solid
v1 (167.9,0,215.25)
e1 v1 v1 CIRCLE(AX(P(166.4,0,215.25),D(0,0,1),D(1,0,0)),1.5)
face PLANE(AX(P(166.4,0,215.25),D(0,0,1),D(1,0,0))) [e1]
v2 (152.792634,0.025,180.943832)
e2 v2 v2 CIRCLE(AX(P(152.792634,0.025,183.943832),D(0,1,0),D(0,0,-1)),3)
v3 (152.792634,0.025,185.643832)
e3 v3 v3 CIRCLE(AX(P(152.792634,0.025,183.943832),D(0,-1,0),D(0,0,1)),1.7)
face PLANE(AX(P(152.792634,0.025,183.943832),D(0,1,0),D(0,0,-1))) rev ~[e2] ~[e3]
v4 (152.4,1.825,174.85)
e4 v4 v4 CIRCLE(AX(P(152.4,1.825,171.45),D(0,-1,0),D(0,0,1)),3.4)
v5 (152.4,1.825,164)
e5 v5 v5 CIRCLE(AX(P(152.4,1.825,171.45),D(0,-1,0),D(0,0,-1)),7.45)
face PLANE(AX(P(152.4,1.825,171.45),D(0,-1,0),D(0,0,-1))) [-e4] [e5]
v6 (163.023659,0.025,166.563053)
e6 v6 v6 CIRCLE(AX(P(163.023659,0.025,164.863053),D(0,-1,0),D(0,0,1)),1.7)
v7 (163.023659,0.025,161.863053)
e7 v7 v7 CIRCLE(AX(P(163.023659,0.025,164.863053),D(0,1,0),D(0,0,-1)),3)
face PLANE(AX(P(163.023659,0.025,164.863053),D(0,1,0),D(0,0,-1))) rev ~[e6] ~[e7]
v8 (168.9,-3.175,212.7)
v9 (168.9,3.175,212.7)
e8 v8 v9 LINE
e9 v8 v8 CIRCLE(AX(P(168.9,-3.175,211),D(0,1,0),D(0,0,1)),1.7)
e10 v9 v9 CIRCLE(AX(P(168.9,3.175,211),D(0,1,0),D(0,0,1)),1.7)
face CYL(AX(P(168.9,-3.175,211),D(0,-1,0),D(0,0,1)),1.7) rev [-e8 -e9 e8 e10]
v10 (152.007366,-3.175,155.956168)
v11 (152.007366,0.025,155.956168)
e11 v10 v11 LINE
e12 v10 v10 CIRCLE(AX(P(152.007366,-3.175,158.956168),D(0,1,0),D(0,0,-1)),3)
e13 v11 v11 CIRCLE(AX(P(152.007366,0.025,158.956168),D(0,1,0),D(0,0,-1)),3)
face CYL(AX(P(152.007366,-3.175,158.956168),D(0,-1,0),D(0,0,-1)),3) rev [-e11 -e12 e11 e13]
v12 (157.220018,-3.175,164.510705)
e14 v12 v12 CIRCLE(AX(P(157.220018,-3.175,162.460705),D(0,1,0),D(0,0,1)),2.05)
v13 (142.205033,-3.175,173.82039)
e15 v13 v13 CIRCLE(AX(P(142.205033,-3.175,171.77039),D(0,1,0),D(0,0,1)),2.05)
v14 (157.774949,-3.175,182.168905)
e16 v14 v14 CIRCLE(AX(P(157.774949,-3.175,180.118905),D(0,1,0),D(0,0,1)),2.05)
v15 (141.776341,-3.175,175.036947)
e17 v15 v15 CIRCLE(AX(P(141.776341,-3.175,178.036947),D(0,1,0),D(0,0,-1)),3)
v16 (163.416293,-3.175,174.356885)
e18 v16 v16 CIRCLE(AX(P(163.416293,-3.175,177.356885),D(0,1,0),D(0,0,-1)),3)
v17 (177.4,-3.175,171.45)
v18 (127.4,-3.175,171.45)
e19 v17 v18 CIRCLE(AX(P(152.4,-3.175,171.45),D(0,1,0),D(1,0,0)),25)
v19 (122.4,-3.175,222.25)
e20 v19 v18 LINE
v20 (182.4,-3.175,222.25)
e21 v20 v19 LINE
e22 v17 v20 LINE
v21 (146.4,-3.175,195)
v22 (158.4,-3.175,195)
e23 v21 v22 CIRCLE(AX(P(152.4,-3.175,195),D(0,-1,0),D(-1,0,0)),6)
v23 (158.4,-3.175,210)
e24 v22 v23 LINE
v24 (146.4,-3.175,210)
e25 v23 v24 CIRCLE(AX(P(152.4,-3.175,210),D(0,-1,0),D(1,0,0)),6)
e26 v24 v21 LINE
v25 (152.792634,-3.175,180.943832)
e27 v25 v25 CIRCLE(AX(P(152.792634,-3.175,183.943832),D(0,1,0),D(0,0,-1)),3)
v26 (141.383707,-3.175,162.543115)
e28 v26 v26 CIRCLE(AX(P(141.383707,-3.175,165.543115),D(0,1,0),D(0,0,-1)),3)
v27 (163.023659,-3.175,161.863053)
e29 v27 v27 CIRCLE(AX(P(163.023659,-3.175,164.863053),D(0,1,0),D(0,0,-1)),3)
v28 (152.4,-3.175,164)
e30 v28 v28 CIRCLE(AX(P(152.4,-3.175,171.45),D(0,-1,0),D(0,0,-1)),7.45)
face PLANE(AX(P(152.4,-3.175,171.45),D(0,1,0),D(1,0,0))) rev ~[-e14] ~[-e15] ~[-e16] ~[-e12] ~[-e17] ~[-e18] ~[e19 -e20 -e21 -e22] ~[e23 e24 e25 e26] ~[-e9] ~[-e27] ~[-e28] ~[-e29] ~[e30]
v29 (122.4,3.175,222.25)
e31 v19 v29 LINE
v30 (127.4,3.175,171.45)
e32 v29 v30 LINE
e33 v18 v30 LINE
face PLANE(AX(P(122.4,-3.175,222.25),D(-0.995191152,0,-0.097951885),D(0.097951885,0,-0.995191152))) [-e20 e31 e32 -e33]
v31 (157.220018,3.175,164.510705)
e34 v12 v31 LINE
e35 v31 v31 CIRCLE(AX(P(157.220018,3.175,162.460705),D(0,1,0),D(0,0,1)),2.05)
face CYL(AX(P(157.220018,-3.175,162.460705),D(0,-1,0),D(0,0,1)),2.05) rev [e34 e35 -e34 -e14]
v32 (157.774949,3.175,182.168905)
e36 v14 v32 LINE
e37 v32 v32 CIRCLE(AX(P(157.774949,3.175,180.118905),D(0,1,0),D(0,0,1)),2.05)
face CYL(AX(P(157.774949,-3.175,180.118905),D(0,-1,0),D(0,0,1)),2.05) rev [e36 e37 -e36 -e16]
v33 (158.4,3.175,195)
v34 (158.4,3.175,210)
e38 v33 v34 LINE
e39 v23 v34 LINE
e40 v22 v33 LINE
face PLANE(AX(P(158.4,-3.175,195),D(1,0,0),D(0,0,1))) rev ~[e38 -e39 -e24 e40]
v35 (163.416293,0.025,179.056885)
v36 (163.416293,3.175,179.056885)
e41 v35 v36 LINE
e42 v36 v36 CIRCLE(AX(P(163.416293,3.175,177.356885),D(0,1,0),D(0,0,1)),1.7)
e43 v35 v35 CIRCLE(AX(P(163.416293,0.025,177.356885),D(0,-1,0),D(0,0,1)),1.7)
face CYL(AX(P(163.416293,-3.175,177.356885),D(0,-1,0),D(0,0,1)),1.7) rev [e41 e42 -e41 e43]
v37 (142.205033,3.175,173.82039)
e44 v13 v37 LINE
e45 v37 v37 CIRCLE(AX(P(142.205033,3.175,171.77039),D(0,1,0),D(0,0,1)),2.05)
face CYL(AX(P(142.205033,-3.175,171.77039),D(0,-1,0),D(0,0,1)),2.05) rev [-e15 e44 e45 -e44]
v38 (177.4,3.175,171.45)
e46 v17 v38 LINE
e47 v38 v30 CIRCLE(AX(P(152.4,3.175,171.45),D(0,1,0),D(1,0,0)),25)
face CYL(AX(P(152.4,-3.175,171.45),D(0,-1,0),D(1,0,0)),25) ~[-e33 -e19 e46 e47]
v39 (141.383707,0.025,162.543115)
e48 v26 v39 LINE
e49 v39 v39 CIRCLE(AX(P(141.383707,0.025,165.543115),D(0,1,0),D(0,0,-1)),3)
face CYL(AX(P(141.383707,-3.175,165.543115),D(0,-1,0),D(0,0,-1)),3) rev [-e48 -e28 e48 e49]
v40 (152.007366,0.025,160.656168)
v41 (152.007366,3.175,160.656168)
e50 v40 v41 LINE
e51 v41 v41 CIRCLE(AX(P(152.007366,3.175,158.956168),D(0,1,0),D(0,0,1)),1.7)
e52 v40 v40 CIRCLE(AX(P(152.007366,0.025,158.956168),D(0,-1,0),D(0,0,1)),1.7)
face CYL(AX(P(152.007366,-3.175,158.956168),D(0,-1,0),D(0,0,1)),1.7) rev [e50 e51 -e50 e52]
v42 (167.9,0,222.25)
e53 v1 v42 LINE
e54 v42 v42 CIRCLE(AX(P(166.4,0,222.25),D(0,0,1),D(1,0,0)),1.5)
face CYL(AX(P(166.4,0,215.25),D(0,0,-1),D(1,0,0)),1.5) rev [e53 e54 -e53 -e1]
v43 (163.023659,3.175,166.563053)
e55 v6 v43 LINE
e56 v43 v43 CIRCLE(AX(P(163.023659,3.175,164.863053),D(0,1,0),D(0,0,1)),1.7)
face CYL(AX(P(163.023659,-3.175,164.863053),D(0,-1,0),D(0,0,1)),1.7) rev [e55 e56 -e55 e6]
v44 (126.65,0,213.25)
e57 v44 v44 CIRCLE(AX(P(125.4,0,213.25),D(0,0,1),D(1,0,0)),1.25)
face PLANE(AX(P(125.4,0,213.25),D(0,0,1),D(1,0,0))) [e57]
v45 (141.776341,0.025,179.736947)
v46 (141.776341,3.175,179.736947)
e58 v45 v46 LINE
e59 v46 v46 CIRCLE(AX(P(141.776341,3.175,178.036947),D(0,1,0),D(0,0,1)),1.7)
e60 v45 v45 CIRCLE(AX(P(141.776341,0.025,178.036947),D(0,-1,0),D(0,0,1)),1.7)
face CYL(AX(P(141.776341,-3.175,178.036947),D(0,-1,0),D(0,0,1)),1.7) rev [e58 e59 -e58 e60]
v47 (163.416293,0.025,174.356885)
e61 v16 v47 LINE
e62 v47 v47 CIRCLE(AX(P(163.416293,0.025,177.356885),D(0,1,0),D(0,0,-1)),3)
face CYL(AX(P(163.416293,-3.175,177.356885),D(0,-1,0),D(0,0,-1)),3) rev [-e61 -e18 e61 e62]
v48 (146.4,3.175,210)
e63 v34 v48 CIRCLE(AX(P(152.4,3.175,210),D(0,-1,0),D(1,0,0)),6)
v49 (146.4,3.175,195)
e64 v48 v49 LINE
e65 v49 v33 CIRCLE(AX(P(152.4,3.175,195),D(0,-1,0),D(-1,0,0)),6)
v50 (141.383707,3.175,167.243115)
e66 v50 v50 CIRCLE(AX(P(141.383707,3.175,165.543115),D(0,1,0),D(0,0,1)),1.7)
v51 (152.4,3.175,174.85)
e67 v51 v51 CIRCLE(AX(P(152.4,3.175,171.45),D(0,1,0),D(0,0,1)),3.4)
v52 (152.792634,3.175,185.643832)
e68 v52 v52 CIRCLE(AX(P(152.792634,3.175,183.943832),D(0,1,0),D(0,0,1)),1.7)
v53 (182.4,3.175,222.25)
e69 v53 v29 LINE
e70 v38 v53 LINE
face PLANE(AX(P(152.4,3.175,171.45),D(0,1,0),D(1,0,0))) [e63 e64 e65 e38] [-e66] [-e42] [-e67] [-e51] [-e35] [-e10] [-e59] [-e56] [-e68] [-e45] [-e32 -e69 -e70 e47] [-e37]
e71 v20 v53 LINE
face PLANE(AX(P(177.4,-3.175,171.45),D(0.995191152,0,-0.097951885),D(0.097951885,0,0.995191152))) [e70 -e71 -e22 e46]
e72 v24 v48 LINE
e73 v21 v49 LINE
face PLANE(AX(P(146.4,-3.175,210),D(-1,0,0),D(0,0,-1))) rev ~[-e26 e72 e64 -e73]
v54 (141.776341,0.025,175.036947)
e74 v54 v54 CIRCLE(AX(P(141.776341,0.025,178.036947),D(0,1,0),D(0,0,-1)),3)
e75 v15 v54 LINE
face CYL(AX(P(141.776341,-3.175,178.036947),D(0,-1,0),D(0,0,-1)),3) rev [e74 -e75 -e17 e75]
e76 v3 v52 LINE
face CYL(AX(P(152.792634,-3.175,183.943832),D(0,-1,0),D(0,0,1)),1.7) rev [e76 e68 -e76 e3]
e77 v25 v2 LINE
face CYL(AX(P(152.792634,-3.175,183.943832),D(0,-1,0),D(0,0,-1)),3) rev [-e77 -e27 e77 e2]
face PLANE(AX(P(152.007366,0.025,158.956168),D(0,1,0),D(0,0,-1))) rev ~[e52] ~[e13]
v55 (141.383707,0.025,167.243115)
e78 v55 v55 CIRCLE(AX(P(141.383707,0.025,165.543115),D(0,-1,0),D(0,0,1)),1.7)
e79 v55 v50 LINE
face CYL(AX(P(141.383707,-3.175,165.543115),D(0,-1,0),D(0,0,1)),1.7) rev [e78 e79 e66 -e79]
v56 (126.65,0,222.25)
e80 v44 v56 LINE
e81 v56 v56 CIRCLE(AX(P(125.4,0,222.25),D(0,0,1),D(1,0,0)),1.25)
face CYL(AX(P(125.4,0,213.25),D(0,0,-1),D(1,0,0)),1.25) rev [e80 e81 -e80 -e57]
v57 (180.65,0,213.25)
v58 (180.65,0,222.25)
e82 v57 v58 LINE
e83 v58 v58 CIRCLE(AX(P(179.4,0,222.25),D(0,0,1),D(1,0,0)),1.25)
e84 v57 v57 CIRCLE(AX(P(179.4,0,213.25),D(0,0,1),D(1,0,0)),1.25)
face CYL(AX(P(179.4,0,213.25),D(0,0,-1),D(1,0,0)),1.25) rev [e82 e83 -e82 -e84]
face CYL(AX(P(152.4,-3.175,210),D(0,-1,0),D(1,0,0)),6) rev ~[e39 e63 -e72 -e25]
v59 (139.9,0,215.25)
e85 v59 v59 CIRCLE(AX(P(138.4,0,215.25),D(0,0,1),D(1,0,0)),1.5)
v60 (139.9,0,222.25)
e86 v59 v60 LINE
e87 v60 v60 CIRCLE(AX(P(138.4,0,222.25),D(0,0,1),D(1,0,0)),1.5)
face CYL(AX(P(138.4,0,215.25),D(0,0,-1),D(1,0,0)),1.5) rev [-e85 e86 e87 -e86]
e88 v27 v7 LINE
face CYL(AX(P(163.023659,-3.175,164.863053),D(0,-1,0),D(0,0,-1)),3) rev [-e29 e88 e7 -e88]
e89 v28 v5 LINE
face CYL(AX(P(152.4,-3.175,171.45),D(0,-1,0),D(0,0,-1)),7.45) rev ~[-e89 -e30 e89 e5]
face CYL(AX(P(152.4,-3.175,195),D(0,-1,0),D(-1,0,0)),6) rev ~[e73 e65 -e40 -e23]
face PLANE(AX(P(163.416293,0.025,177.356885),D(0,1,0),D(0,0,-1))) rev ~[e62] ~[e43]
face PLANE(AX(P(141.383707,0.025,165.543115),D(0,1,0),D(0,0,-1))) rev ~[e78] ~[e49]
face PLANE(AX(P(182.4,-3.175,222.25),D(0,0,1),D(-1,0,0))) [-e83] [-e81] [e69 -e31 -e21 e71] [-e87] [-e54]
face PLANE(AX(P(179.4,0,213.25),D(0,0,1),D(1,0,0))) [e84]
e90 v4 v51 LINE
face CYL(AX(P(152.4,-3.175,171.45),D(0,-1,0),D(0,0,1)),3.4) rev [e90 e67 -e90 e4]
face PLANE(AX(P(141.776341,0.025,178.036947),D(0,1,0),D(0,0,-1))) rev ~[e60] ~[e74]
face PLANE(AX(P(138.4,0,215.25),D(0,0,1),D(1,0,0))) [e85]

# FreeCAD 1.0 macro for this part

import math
import FreeCAD as App
import Part
import Sketcher

V = App.Vector

doc = App.newDocument("Part")
params = doc.addObject("Spreadsheet::Sheet", "Params")
for row, (alias, value) in enumerate([
    ("sketch1_width", "50 mm"),
    ("sketch1_width2", "60 mm"),
    ("pad1_length", "6.35 mm"),
    ("sketch2_diameter", "50 mm"),
    ("pad2_length", "6.35 mm"),
    ("sketch3_diameter", "3.4 mm"),
    ("sketch3_diameter2", "4.1 mm"),
    ("sketch3_diameter3", "6.8 mm"),
    ("pocket1_length", "6.35 mm"),
    ("sketch4_diameter", "6 mm"),
    ("pocket2_length", "3.2 mm"),
    ("sketch5_radius", "6 mm"),
    ("sketch5_height", "15 mm"),
    ("pocket3_length", "6.35 mm"),
    ("sketch6_diameter", "2.5 mm"),
    ("pocket4_length", "9 mm"),
    ("sketch7_diameter", "3 mm"),
    ("pocket5_length", "7 mm"),
    ("sketch8_diameter", "3.4 mm"),
    ("pocket6_length", "6.35 mm"),
    ("sketch9_diameter", "14.9 mm"),
    ("pocket7_length", "5 mm"),
], start=1):
    params.set(f"A{row}", alias)
    params.set(f"B{row}", "=" + value)
    params.setAlias(f"B{row}", alias)

body = doc.addObject("PartDesign::Body", "Body")

# Sketch on XZ plane
sketch1 = doc.addObject("Sketcher::SketchObject", "Sketch")
body.addObject(sketch1)
sketch1.AttachmentSupport = (doc.XZ_Plane, [""])
sketch1.MapMode = "FlatFace"
sketch1.AttachmentOffset = App.Placement(V(0, 0, 3.175), App.Rotation())
sketch1.addGeometry([
    Part.LineSegment(V(177, 171, 0), V(127, 171, 0)),
    Part.LineSegment(V(127, 171, 0), V(122, 222, 0)),
    Part.LineSegment(V(122, 222, 0), V(182, 222, 0)),
    Part.LineSegment(V(182, 222, 0), V(177, 171, 0)),
], False)
sketch1.addConstraint([
    Sketcher.Constraint("Coincident", 0, 2, 1, 1),
    Sketcher.Constraint("Coincident", 1, 2, 2, 1),
    Sketcher.Constraint("Coincident", 2, 2, 3, 1),
    Sketcher.Constraint("Coincident", 3, 2, 0, 1),
    Sketcher.Constraint("Horizontal", 0),
    Sketcher.Constraint("Horizontal", 2),
    Sketcher.Constraint("Equal", 1, 3),
    Sketcher.Constraint("DistanceX", 0, 2, 0, 1, 50.0),
    Sketcher.Constraint("DistanceX", 2, 1, 2, 2, 60.0),
    Sketcher.Constraint("DistanceX", -1, 1, 0, 2, 127.4),
    Sketcher.Constraint("DistanceY", 0, 2, 1, 2, 50.8),
    Sketcher.Constraint("DistanceY", -1, 1, 0, 2, 171.45),
])
sketch1.setExpression("Constraints[7]", "Params.sketch1_width")
sketch1.setExpression("Constraints[8]", "Params.sketch1_width2")
pad1 = doc.addObject("PartDesign::Pad", "Pad")
body.addObject(pad1)
pad1.Profile = sketch1
pad1.setExpression("Length", "Params.pad1_length")
pad1.Reversed = True

# Sketch on XZ plane
sketch2 = doc.addObject("Sketcher::SketchObject", "Sketch001")
body.addObject(sketch2)
sketch2.AttachmentSupport = (doc.XZ_Plane, [""])
sketch2.MapMode = "FlatFace"
sketch2.AttachmentOffset = App.Placement(V(0, 0, 3.175), App.Rotation())
sketch2.addGeometry(Part.Circle(V(152, 171, 0), V(0, 0, 1), 25), False)
sketch2.addConstraint([
    Sketcher.Constraint("Diameter", 0, 50.0),
    Sketcher.Constraint("DistanceX", -1, 1, 0, 3, 152.4),
    Sketcher.Constraint("DistanceY", -1, 1, 0, 3, 171.45),
])
sketch2.setExpression("Constraints[0]", "Params.sketch2_diameter")
pad2 = doc.addObject("PartDesign::Pad", "Pad001")
body.addObject(pad2)
pad2.Profile = sketch2
pad2.setExpression("Length", "Params.pad2_length")
pad2.Reversed = True

# Sketch on XZ plane
sketch3 = doc.addObject("Sketcher::SketchObject", "Sketch002")
body.addObject(sketch3)
sketch3.AttachmentSupport = (doc.XZ_Plane, [""])
sketch3.MapMode = "FlatFace"
sketch3.AttachmentOffset = App.Placement(V(0, 0, 3.175), App.Rotation())
sketch3.addGeometry([
    Part.Circle(V(163.4, 177.4, 0), V(0, 0, 1), 1.7),  # 0
    Part.Circle(V(152.8, 183.9, 0), V(0, 0, 1), 1.7),  # 1
    Part.Circle(V(141.8, 178, 0), V(0, 0, 1), 1.7),  # 2
    Part.Circle(V(141.4, 165.5, 0), V(0, 0, 1), 1.7),  # 3
    Part.Circle(V(152, 159, 0), V(0, 0, 1), 1.7),  # 4
    Part.Circle(V(163, 164.9, 0), V(0, 0, 1), 1.7),  # 5
    Part.Circle(V(157.8, 180.1, 0), V(0, 0, 1), 2),  # 6
    Part.Circle(V(142.2, 171.8, 0), V(0, 0, 1), 2),  # 7
    Part.Circle(V(157.2, 162.5, 0), V(0, 0, 1), 2),  # 8
    Part.Circle(V(152.4, 171.4, 0), V(0, 0, 1), 3.4),  # 9
], False)
sketch3.addConstraint([
    Sketcher.Constraint("Equal", 0, 1),
    Sketcher.Constraint("Equal", 1, 2),
    Sketcher.Constraint("Equal", 2, 3),
    Sketcher.Constraint("Equal", 3, 4),
    Sketcher.Constraint("Equal", 4, 5),
    Sketcher.Constraint("Equal", 6, 7),
    Sketcher.Constraint("Equal", 7, 8),
    Sketcher.Constraint("Diameter", 0, 3.4),
    Sketcher.Constraint("Diameter", 6, 4.1),
    Sketcher.Constraint("Diameter", 9, 6.8),
    Sketcher.Constraint("DistanceX", -1, 1, 9, 3, 152.4),
    Sketcher.Constraint("DistanceY", -1, 1, 9, 3, 171.45),
    Sketcher.Constraint("DistanceX", 7, 3, 1, 3, 10.587601),
    Sketcher.Constraint("DistanceY", 8, 3, 6, 3, 17.658201),
    Sketcher.Constraint("DistanceX", -1, 1, 2, 3, 141.776341),
    Sketcher.Constraint("DistanceX", -1, 1, 5, 3, 163.023659),
    Sketcher.Constraint("DistanceX", -1, 1, 6, 3, 157.774949),
    Sketcher.Constraint("DistanceY", -1, 1, 7, 3, 171.77039),
    Sketcher.Constraint("DistanceX", 1, 3, 0, 3, 10.623659),
    Sketcher.Constraint("DistanceX", 2, 3, 0, 3, 21.639952),
    Sketcher.Constraint("DistanceY", 3, 3, 0, 3, 11.813769),
    Sketcher.Constraint("DistanceX", 3, 3, 4, 3, 10.623659),
    Sketcher.Constraint("DistanceY", 4, 3, 2, 3, 19.080779),
    Sketcher.Constraint("DistanceX", 4, 3, 1, 3, 0.785269),
    Sketcher.Constraint("DistanceY", 5, 3, 1, 3, 19.080779),
    Sketcher.Constraint("DistanceY", 0, 3, 6, 3, 2.762021),
    Sketcher.Constraint("DistanceY", 2, 3, 6, 3, 2.081958),
    Sketcher.Constraint("DistanceY", 4, 3, 7, 3, 12.814222),
    Sketcher.Constraint("DistanceX", 8, 3, 5, 3, 5.803641),
    Sketcher.Constraint("DistanceY", -1, 1, 1, 3, 183.943832),
])
sketch3.setExpression("Constraints[7]", "Params.sketch3_diameter")
sketch3.setExpression("Constraints[8]", "Params.sketch3_diameter2")
sketch3.setExpression("Constraints[9]", "Params.sketch3_diameter3")
pocket1 = doc.addObject("PartDesign::Pocket", "Pocket")
body.addObject(pocket1)
pocket1.Profile = sketch3
pocket1.setExpression("Length", "Params.pocket1_length")

# Sketch on XZ plane
sketch4 = doc.addObject("Sketcher::SketchObject", "Sketch003")
body.addObject(sketch4)
sketch4.AttachmentSupport = (doc.XZ_Plane, [""])
sketch4.MapMode = "FlatFace"
sketch4.AttachmentOffset = App.Placement(V(0, 0, 3.175), App.Rotation())
sketch4.addGeometry([
    Part.Circle(V(163.4, 177.4, 0), V(0, 0, 1), 3),  # 0
    Part.Circle(V(152.8, 183.9, 0), V(0, 0, 1), 3),  # 1
    Part.Circle(V(141.8, 178, 0), V(0, 0, 1), 3),  # 2
    Part.Circle(V(141.4, 165.5, 0), V(0, 0, 1), 3),  # 3
    Part.Circle(V(152, 159, 0), V(0, 0, 1), 3),  # 4
    Part.Circle(V(163, 164.9, 0), V(0, 0, 1), 3),  # 5
], False)
sketch4.addConstraint([
    Sketcher.Constraint("Equal", 0, 1),
    Sketcher.Constraint("Equal", 1, 2),
    Sketcher.Constraint("Equal", 2, 3),
    Sketcher.Constraint("Equal", 3, 4),
    Sketcher.Constraint("Equal", 4, 5),
    Sketcher.Constraint("Diameter", 0, 6.0),
    Sketcher.Constraint("DistanceX", -1, 1, 2, 3, 141.776341),
    Sketcher.Constraint("DistanceX", -1, 1, 5, 3, 163.023659),
    Sketcher.Constraint("DistanceX", 1, 3, 0, 3, 10.623659),
    Sketcher.Constraint("DistanceX", 2, 3, 0, 3, 21.639952),
    Sketcher.Constraint("DistanceY", 3, 3, 0, 3, 11.813769),
    Sketcher.Constraint("DistanceX", 3, 3, 4, 3, 10.623659),
    Sketcher.Constraint("DistanceY", 4, 3, 2, 3, 19.080779),
    Sketcher.Constraint("DistanceX", 4, 3, 1, 3, 0.785269),
    Sketcher.Constraint("DistanceY", 5, 3, 1, 3, 19.080779),
    Sketcher.Constraint("DistanceY", -1, 1, 0, 3, 177.356885),
    Sketcher.Constraint("DistanceY", -1, 1, 1, 3, 183.943832),
    Sketcher.Constraint("DistanceY", -1, 1, 2, 3, 178.036947),
])
sketch4.setExpression("Constraints[5]", "Params.sketch4_diameter")
pocket2 = doc.addObject("PartDesign::Pocket", "Pocket001")
body.addObject(pocket2)
pocket2.Profile = sketch4
pocket2.setExpression("Length", "Params.pocket2_length")

# Sketch on XZ plane
sketch5 = doc.addObject("Sketcher::SketchObject", "Sketch004")
body.addObject(sketch5)
sketch5.AttachmentSupport = (doc.XZ_Plane, [""])
sketch5.MapMode = "FlatFace"
sketch5.AttachmentOffset = App.Placement(V(0, 0, 3.175), App.Rotation())
sketch5.addGeometry([
    Part.LineSegment(V(158, 210, 0), V(158, 195, 0)),
    Part.ArcOfCircle(Part.Circle(V(152, 195, 0), V(0, 0, 1), 6), math.radians(180), math.radians(360)),
    Part.LineSegment(V(146, 195, 0), V(146, 210, 0)),
    Part.ArcOfCircle(Part.Circle(V(152, 210, 0), V(0, 0, 1), 6), math.radians(0), math.radians(180)),
], False)
sketch5.addConstraint([
    Sketcher.Constraint("Tangent", 0, 2, 1, 2),
    Sketcher.Constraint("Tangent", 1, 1, 2, 1),
    Sketcher.Constraint("Tangent", 2, 2, 3, 2),
    Sketcher.Constraint("Tangent", 3, 1, 0, 1),
    Sketcher.Constraint("Vertical", 0),
    Sketcher.Constraint("Vertical", 2),
    Sketcher.Constraint("Radius", 1, 6.0),
    Sketcher.Constraint("DistanceY", 0, 2, 0, 1, 15.0),
    Sketcher.Constraint("DistanceY", -1, 1, 1, 3, 195.0),
    Sketcher.Constraint("DistanceX", -1, 1, 1, 3, 152.4),
])
sketch5.setExpression("Constraints[6]", "Params.sketch5_radius")
sketch5.setExpression("Constraints[7]", "Params.sketch5_height")
pocket3 = doc.addObject("PartDesign::Pocket", "Pocket002")
body.addObject(pocket3)
pocket3.Profile = sketch5
pocket3.setExpression("Length", "Params.pocket3_length")

# Sketch on XY plane
sketch6 = doc.addObject("Sketcher::SketchObject", "Sketch005")
body.addObject(sketch6)
sketch6.AttachmentSupport = (doc.XY_Plane, [""])
sketch6.MapMode = "FlatFace"
sketch6.AttachmentOffset = App.Placement(V(0, 0, 213.25), App.Rotation())
sketch6.addGeometry([
    Part.Circle(V(125.4, 0, 0), V(0, 0, 1), 1.2),
    Part.Circle(V(179.4, 0, 0), V(0, 0, 1), 1.2),
], False)
sketch6.addConstraint([
    Sketcher.Constraint("Equal", 0, 1),
    Sketcher.Constraint("PointOnObject", 0, 3, -1),
    Sketcher.Constraint("PointOnObject", 1, 3, -1),
    Sketcher.Constraint("Diameter", 0, 2.5),
    Sketcher.Constraint("DistanceX", 0, 3, 1, 3, 54.0),
    Sketcher.Constraint("DistanceX", -1, 1, 0, 3, 125.4),
])
sketch6.setExpression("Constraints[3]", "Params.sketch6_diameter")
pocket4 = doc.addObject("PartDesign::Pocket", "Pocket003")
body.addObject(pocket4)
pocket4.Profile = sketch6
pocket4.setExpression("Length", "Params.pocket4_length")
pocket4.Reversed = True

# Sketch on XY plane
sketch7 = doc.addObject("Sketcher::SketchObject", "Sketch006")
body.addObject(sketch7)
sketch7.AttachmentSupport = (doc.XY_Plane, [""])
sketch7.MapMode = "FlatFace"
sketch7.AttachmentOffset = App.Placement(V(0, 0, 215.25), App.Rotation())
sketch7.addGeometry([
    Part.Circle(V(138.4, 0, 0), V(0, 0, 1), 1.5),
    Part.Circle(V(166.4, 0, 0), V(0, 0, 1), 1.5),
], False)
sketch7.addConstraint([
    Sketcher.Constraint("Equal", 0, 1),
    Sketcher.Constraint("PointOnObject", 0, 3, -1),
    Sketcher.Constraint("PointOnObject", 1, 3, -1),
    Sketcher.Constraint("Diameter", 0, 3.0),
    Sketcher.Constraint("DistanceX", 0, 3, 1, 3, 28.0),
    Sketcher.Constraint("DistanceX", -1, 1, 0, 3, 138.4),
])
sketch7.setExpression("Constraints[3]", "Params.sketch7_diameter")
pocket5 = doc.addObject("PartDesign::Pocket", "Pocket004")
body.addObject(pocket5)
pocket5.Profile = sketch7
pocket5.setExpression("Length", "Params.pocket5_length")
pocket5.Reversed = True

# Sketch on XZ plane
sketch8 = doc.addObject("Sketcher::SketchObject", "Sketch007")
body.addObject(sketch8)
sketch8.AttachmentSupport = (doc.XZ_Plane, [""])
sketch8.MapMode = "FlatFace"
sketch8.AttachmentOffset = App.Placement(V(0, 0, 3.175), App.Rotation())
sketch8.addGeometry(Part.Circle(V(168.9, 211, 0), V(0, 0, 1), 1.7), False)
sketch8.addConstraint([
    Sketcher.Constraint("Diameter", 0, 3.4),
    Sketcher.Constraint("DistanceY", -1, 1, 0, 3, 211.0),
    Sketcher.Constraint("DistanceX", -1, 1, 0, 3, 168.9),
])
sketch8.setExpression("Constraints[0]", "Params.sketch8_diameter")
pocket6 = doc.addObject("PartDesign::Pocket", "Pocket005")
body.addObject(pocket6)
pocket6.Profile = sketch8
pocket6.setExpression("Length", "Params.pocket6_length")

# Sketch on XZ plane
sketch9 = doc.addObject("Sketcher::SketchObject", "Sketch008")
body.addObject(sketch9)
sketch9.AttachmentSupport = (doc.XZ_Plane, [""])
sketch9.MapMode = "FlatFace"
sketch9.AttachmentOffset = App.Placement(V(0, 0, 3.175), App.Rotation())
sketch9.addGeometry(Part.Circle(V(152, 171, 0), V(0, 0, 1), 7), False)
sketch9.addConstraint([
    Sketcher.Constraint("Diameter", 0, 14.9),
    Sketcher.Constraint("DistanceX", -1, 1, 0, 3, 152.4),
    Sketcher.Constraint("DistanceY", -1, 1, 0, 3, 171.45),
])
sketch9.setExpression("Constraints[0]", "Params.sketch9_diameter")
pocket7 = doc.addObject("PartDesign::Pocket", "Pocket006")
body.addObject(pocket7)
pocket7.Profile = sketch9
pocket7.setExpression("Length", "Params.pocket7_length")

doc.recompute()
